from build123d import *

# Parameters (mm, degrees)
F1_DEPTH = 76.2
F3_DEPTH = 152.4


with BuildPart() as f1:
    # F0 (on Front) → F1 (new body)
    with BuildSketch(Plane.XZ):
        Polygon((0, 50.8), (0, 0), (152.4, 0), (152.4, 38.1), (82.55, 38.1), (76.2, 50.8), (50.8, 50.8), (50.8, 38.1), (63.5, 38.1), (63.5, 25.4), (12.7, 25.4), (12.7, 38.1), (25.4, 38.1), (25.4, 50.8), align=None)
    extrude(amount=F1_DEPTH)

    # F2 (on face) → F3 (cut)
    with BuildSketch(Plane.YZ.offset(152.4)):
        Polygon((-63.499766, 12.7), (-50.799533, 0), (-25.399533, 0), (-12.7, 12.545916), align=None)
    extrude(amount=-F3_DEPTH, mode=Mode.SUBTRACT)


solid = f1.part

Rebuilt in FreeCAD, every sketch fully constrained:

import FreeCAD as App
import Part
import Sketcher

V = App.Vector
Q = App.Units.Quantity

doc = App.newDocument("Part")
body = doc.addObject("PartDesign::Body", "Body")

sketch1 = doc.addObject("Sketcher::SketchObject", "Sketch")
body.addObject(sketch1)
sketch1.AttachmentSupport = (doc.XZ_Plane, [""])
sketch1.MapMode = "FlatFace"
sketch1.addGeometry([
    Part.LineSegment(V(0, 51, 0), V(0, 0, 0)),
    Part.LineSegment(V(0, 0, 0), V(152, 0, 0)),
    Part.LineSegment(V(152, 0, 0), V(152, 38, 0)),
    Part.LineSegment(V(152, 38, 0), V(83, 38, 0)),
    Part.LineSegment(V(83, 38, 0), V(76, 51, 0)),
    Part.LineSegment(V(76, 51, 0), V(51, 51, 0)),
    Part.LineSegment(V(51, 51, 0), V(51, 38, 0)),
    Part.LineSegment(V(51, 38, 0), V(64, 38, 0)),
    Part.LineSegment(V(64, 38, 0), V(64, 25, 0)),
    Part.LineSegment(V(64, 25, 0), V(13, 25, 0)),
    Part.LineSegment(V(13, 25, 0), V(13, 38, 0)),
    Part.LineSegment(V(13, 38, 0), V(25, 38, 0)),
    Part.LineSegment(V(25, 38, 0), V(25, 51, 0)),
    Part.LineSegment(V(25, 51, 0), V(0, 51, 0)),
], False)
sketch1.addConstraint([
    Sketcher.Constraint("Coincident", 0, 2, 1, 1),
    Sketcher.Constraint("Coincident", 1, 2, 2, 1),
    Sketcher.Constraint("Coincident", 2, 2, 3, 1),
    Sketcher.Constraint("Coincident", 3, 2, 4, 1),
    Sketcher.Constraint("Coincident", 4, 2, 5, 1),
    Sketcher.Constraint("Coincident", 5, 2, 6, 1),
    Sketcher.Constraint("Coincident", 6, 2, 7, 1),
    Sketcher.Constraint("Coincident", 7, 2, 8, 1),
    Sketcher.Constraint("Coincident", 8, 2, 9, 1),
    Sketcher.Constraint("Coincident", 9, 2, 10, 1),
    Sketcher.Constraint("Coincident", 10, 2, 11, 1),
    Sketcher.Constraint("Coincident", 11, 2, 12, 1),
    Sketcher.Constraint("Coincident", 12, 2, 13, 1),
    Sketcher.Constraint("Coincident", 13, 2, 0, 1),
    Sketcher.Constraint("Vertical", 0),
    Sketcher.Constraint("Horizontal", 1),
    Sketcher.Constraint("Vertical", 2),
    Sketcher.Constraint("Horizontal", 3),
    Sketcher.Constraint("Horizontal", 5),
    Sketcher.Constraint("Vertical", 6),
    Sketcher.Constraint("Horizontal", 7),
    Sketcher.Constraint("Vertical", 8),
    Sketcher.Constraint("Horizontal", 9),
    Sketcher.Constraint("Vertical", 10),
    Sketcher.Constraint("Horizontal", 11),
    Sketcher.Constraint("Vertical", 12),
    Sketcher.Constraint("Horizontal", 13),
    Sketcher.Constraint("Coincident", 0, 2, -1, 1),
    Sketcher.Constraint("Horizontal", 3, 2, 6, 2),
    Sketcher.Constraint("Horizontal", 7, 2, 10, 2),
    Sketcher.Constraint("Horizontal", 5, 2, 12, 2),
    Sketcher.Constraint("Equal", 7, 11),
    Sketcher.Constraint("Equal", 5, 13),
    Sketcher.Constraint("Equal", 9, 0),
    Sketcher.Constraint("Equal", 11, 6),
    Sketcher.Constraint("Equal", 6, 8),
    Sketcher.Constraint("DistanceX", 1, 1, 1, 2, Q("6 in")),
    Sketcher.Constraint("DistanceX", 5, 2, 5, 1, Q("1 in")),
    Sketcher.Constraint("DistanceX", 9, 2, 9, 1, Q("2 in")),
    Sketcher.Constraint("DistanceX", 7, 1, 7, 2, Q("0.5 in")),
    Sketcher.Constraint("DistanceX", 3, 2, 3, 1, Q("2.75 in")),
])
pad1 = doc.addObject("PartDesign::Pad", "Pad")
body.addObject(pad1)
pad1.Profile = sketch1
pad1.Length = Q("3 in")

sketch2 = doc.addObject("Sketcher::SketchObject", "Sketch001")
body.addObject(sketch2)
sketch2.AttachmentSupport = (doc.YZ_Plane, [""])
sketch2.MapMode = "FlatFace"
sketch2.AttachmentOffset = App.Placement(V(0, 0, 6 * 25.4), App.Rotation())
sketch2.addGeometry([
    Part.LineSegment(V(-63, 13, 0), V(-51, 0, 0)),
    Part.LineSegment(V(-51, 0, 0), V(-25, 0, 0)),
    Part.LineSegment(V(-25, 0, 0), V(-13, 13, 0)),
    Part.LineSegment(V(-13, 13, 0), V(-63, 13, 0)),
], False)
sketch2.addConstraint([
    Sketcher.Constraint("Coincident", 0, 2, 1, 1),
    Sketcher.Constraint("Coincident", 1, 2, 2, 1),
    Sketcher.Constraint("Coincident", 2, 2, 3, 1),
    Sketcher.Constraint("Coincident", 3, 2, 0, 1),
    Sketcher.Constraint("Horizontal", 1),
    Sketcher.Constraint("PointOnObject", 0, 2, -1),
    Sketcher.Constraint("DistanceX", 1, 1, 1, 2, Q("1 in")),
    Sketcher.Constraint("Distance", 3, Q("2 in")),
    Sketcher.Constraint("DistanceX", 2, 2, -1, 1, Q("0.5 in")),
    Sketcher.Constraint("DistanceY", -1, 1, 3, 2, Q("0.5 in")),
    Sketcher.Constraint("Distance", 2, Q("17.851559 mm")),
    Sketcher.Constraint("Distance", 0, Q("17.960677 mm")),
])
pocket1 = doc.addObject("PartDesign::Pocket", "Pocket")
body.addObject(pocket1)
pocket1.Profile = sketch2
pocket1.Length = Q("6 in")

doc.recompute()
